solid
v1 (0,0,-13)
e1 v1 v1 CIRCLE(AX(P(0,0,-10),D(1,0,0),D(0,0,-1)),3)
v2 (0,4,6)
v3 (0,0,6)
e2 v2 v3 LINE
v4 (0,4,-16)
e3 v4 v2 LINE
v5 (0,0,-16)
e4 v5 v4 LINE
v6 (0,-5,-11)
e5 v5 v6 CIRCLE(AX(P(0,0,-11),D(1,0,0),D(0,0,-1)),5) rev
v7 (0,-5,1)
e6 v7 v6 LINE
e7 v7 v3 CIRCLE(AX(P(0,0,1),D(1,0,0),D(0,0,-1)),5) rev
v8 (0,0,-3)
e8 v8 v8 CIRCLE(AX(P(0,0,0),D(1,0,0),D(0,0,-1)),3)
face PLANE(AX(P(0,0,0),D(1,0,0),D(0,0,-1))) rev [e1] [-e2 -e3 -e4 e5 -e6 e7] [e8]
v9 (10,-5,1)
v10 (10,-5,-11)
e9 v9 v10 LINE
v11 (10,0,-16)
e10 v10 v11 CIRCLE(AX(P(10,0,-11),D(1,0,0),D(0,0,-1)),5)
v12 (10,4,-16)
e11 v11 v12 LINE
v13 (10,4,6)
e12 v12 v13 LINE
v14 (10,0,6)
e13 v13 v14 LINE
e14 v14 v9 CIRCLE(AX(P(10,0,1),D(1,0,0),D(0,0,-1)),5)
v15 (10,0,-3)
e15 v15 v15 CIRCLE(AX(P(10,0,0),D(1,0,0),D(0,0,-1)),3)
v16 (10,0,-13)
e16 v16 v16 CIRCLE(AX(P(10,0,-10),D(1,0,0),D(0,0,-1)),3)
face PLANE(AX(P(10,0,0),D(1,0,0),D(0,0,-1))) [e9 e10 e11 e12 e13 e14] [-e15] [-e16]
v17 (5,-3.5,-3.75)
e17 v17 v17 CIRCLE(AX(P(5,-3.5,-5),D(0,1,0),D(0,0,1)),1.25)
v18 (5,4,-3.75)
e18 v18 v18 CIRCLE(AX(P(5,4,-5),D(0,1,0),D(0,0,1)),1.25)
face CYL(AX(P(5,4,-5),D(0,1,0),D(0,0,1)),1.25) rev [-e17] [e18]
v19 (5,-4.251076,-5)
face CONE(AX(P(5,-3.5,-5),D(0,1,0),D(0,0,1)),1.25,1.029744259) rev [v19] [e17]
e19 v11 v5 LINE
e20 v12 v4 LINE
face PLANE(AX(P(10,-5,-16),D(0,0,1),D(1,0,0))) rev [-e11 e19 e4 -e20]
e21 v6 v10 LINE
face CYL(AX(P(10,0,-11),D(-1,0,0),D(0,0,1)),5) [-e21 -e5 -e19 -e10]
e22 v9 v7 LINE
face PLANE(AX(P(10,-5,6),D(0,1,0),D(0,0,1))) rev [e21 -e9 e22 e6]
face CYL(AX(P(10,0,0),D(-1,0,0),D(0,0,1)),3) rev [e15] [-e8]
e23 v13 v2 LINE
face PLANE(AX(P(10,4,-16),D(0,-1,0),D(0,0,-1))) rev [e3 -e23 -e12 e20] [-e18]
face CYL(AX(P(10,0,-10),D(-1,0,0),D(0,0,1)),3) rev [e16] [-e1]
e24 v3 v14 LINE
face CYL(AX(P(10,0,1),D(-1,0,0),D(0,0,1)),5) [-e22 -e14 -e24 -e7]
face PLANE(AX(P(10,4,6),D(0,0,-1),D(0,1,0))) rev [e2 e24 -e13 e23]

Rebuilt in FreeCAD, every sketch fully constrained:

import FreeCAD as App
import Part
import Sketcher
from FreeCAD import Vector


def edges_at(feature, points):
    """Names of the edges that pass closest to the given points."""
    edges = feature.Shape.Edges
    near = lambda p: min(range(len(edges)), key=lambda i: edges[i].distToShape(Part.Vertex(*p))[0])
    return sorted({f"Edge{near(p) + 1}" for p in points})

doc = App.newDocument("Part")
params = doc.addObject("Spreadsheet::Sheet", "Params")
for row, (alias, value) in enumerate([
    ("sketch1_diameter", "6 mm"),
    ("sketch1_width", "9 mm"),
    ("sketch1_height", "22 mm"),
    ("pad1_length", "10 mm"),
    ("fillet_radius", "5 mm"),
    ("sketch2_diameter", "2.5 mm"),
    ("hole_diameter", "2.5 mm"),
    ("hole_depth", "7.5 mm"),
], start=1):
    params.set(f"A{row}", alias)
    params.set(f"B{row}", "=" + value)
    params.setAlias(f"B{row}", alias)

body = doc.addObject("PartDesign::Body", "Body")

# Sketch on YZ plane
sketch1 = doc.addObject("Sketcher::SketchObject", "Sketch")
body.addObject(sketch1)
sketch1.AttachmentSupport = (doc.YZ_Plane, [""])
sketch1.MapMode = "FlatFace"
sketch1.addGeometry(Part.LineSegment(Vector(4, 6, 0), Vector(-5, 6, 0)), False)
sketch1.addGeometry(Part.LineSegment(Vector(-5, 6, 0), Vector(-5, -16, 0)), False)
sketch1.addGeometry(Part.LineSegment(Vector(-5, -16, 0), Vector(4, -16, 0)), False)
sketch1.addGeometry(Part.LineSegment(Vector(4, -16, 0), Vector(4, 6, 0)), False)
sketch1.addGeometry(Part.Circle(Vector(0, 0, 0), Vector(0, 0, 1), 3), False)
sketch1.addGeometry(Part.Circle(Vector(0, -10, 0), Vector(0, 0, 1), 3), False)
sketch1.addConstraint(Sketcher.Constraint("Coincident", 0, 2, 1, 1))
sketch1.addConstraint(Sketcher.Constraint("Coincident", 1, 2, 2, 1))
sketch1.addConstraint(Sketcher.Constraint("Coincident", 2, 2, 3, 1))
sketch1.addConstraint(Sketcher.Constraint("Coincident", 3, 2, 0, 1))
sketch1.addConstraint(Sketcher.Constraint("Horizontal", 0))
sketch1.addConstraint(Sketcher.Constraint("Vertical", 1))
sketch1.addConstraint(Sketcher.Constraint("Horizontal", 2))
sketch1.addConstraint(Sketcher.Constraint("Vertical", 3))
sketch1.addConstraint(Sketcher.Constraint("Coincident", 4, 3, -1, 1))
sketch1.addConstraint(Sketcher.Constraint("Equal", 4, 5))
sketch1.addConstraint(Sketcher.Constraint("PointOnObject", 5, 3, -2))
sketch1.addConstraint(Sketcher.Constraint("Diameter", 4, 6.0))
sketch1.addConstraint(Sketcher.Constraint("DistanceX", 0, 2, 0, 1, 9.0))
sketch1.addConstraint(Sketcher.Constraint("DistanceY", 1, 2, 1, 1, 22.0))
sketch1.addConstraint(Sketcher.Constraint("DistanceY", 5, 3, -1, 1, 10.0))
sketch1.addConstraint(Sketcher.Constraint("DistanceX", 0, 2, -1, 1, 5.0))
sketch1.addConstraint(Sketcher.Constraint("DistanceY", -1, 1, 0, 2, 6.0))
sketch1.setExpression("Constraints[11]", "Params.sketch1_diameter")
sketch1.setExpression("Constraints[12]", "Params.sketch1_width")
sketch1.setExpression("Constraints[13]", "Params.sketch1_height")
pad1 = doc.addObject("PartDesign::Pad", "Pad")
body.addObject(pad1)
pad1.Profile = sketch1
pad1.setExpression("Length", "Params.pad1_length")
doc.recompute()

fillet = doc.addObject("PartDesign::Fillet", "Fillet")
body.addObject(fillet)
fillet.Base = (pad1, edges_at(pad1, [(5, -5, -16), (5, -5, 6)]))
fillet.setExpression("Radius", "Params.fillet_radius")

# Sketch on XZ plane
sketch2 = doc.addObject("Sketcher::SketchObject", "Sketch001")
body.addObject(sketch2)
sketch2.AttachmentSupport = (doc.XZ_Plane, [""])
sketch2.MapMode = "FlatFace"
sketch2.AttachmentOffset = App.Placement(Vector(0, 0, -4), App.Rotation())
sketch2.addGeometry(Part.Circle(Vector(5, -5, 0), Vector(0, 0, 1), 1.25), False)
sketch2.addConstraint(Sketcher.Constraint("Diameter", 0, 2.5))
sketch2.addConstraint(Sketcher.Constraint("DistanceX", -1, 1, 0, 3, 5.0))
sketch2.addConstraint(Sketcher.Constraint("DistanceY", 0, 3, -1, 1, 5.0))
sketch2.setExpression("Constraints[0]", "Params.sketch2_diameter")
doc.recompute()
hole = doc.addObject("PartDesign::Hole", "Hole")
body.addObject(hole)
hole.Profile = sketch2
hole.ThreadType = "None"
hole.setExpression("Diameter", "Params.hole_diameter")
hole.DepthType = "Dimension"
hole.setExpression("Depth", "Params.hole_depth")
hole.DrillPoint = "Angled"
hole.DrillPointAngle = 118
hole.Reversed = True

doc.recompute()
